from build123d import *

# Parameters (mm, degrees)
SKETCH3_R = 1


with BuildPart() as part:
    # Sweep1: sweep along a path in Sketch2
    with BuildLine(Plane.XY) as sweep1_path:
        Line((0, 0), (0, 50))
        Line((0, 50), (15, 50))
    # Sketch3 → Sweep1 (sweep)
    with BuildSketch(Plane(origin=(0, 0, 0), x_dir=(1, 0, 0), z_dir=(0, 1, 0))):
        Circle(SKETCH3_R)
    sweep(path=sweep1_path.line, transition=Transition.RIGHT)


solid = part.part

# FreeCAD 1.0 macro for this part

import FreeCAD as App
import Part
import Sketcher

V = App.Vector
Q = App.Units.Quantity

doc = App.newDocument("Part")
body = doc.addObject("PartDesign::Body", "Body")

# Sketch on XZ plane
sketch1 = body.newObject("Sketcher::SketchObject", "Sketch")
sketch1.AttachmentSupport = (doc.getObject("XZ_Plane"), [""])
sketch1.MapMode = "FlatFace"
sketch1.addGeometry(Part.Circle(V(0, 0, 0), V(0, 0, 1), 1), False)
sketch1.addConstraint(Sketcher.Constraint("Coincident", 0, 3, -1, 1))
sketch1.addConstraint(Sketcher.Constraint("Diameter", 0, Q("2 mm")))

# Sketch on XY plane
sketch2 = body.newObject("Sketcher::SketchObject", "Sketch001")
sketch2.AttachmentSupport = (doc.getObject("XY_Plane"), [""])
sketch2.MapMode = "FlatFace"
sketch2.addGeometry(Part.LineSegment(V(0, 0, 0), V(0, 50, 0)), False)
sketch2.addGeometry(Part.LineSegment(V(0, 50, 0), V(15, 50, 0)), False)
sketch2.addConstraint(Sketcher.Constraint("Coincident", 0, 2, 1, 1))
sketch2.addConstraint(Sketcher.Constraint("Vertical", 0))
sketch2.addConstraint(Sketcher.Constraint("Horizontal", 1))
sketch2.addConstraint(Sketcher.Constraint("Coincident", 0, 1, -1, 1))
sketch2.addConstraint(Sketcher.Constraint("DistanceX", 1, 1, 1, 2, Q("15 mm")))
sketch2.addConstraint(Sketcher.Constraint("DistanceY", 0, 1, 0, 2, Q("50 mm")))
doc.recompute()

additivepipe = body.newObject("PartDesign::AdditivePipe", "AdditivePipe")
additivepipe.Profile = sketch1
additivepipe.Spine = (sketch2, ["Edge1", "Edge2"])
additivepipe.Transition = "Right corner"

doc.recompute()
